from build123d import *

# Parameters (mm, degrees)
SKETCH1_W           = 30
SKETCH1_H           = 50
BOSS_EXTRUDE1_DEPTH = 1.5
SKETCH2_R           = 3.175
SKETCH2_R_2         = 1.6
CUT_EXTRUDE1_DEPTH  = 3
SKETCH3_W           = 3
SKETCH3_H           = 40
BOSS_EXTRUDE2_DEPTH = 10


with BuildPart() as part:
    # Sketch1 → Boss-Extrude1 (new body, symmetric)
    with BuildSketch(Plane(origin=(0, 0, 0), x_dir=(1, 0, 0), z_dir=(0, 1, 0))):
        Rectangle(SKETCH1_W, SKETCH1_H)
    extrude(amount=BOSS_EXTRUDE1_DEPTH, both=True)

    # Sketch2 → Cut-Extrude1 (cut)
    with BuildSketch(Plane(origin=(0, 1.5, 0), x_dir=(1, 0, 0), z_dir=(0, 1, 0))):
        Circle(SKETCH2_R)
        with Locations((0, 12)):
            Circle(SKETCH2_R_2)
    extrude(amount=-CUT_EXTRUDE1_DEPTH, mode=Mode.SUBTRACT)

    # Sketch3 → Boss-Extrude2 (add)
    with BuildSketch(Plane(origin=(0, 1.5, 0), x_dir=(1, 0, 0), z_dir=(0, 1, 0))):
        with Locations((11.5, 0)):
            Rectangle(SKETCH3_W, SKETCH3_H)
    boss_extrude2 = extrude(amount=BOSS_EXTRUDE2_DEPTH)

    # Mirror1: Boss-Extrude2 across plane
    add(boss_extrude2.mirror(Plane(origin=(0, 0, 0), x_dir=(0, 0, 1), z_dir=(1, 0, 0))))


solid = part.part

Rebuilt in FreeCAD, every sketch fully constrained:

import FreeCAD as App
import Part
import Sketcher
from FreeCAD import Vector
Q = App.Units.Quantity

doc = App.newDocument("Part")
body = doc.addObject("PartDesign::Body", "Body")

# Sketch on XZ plane
sketch1 = doc.addObject("Sketcher::SketchObject", "Sketch")
body.addObject(sketch1)
sketch1.AttachmentSupport = (doc.XZ_Plane, [""])
sketch1.MapMode = "FlatFace"
sketch1.addGeometry(Part.LineSegment(Vector(-15, -25, 0), Vector(-15, 25, 0)), False)
sketch1.addGeometry(Part.LineSegment(Vector(-15, 25, 0), Vector(15, 25, 0)), False)
sketch1.addGeometry(Part.LineSegment(Vector(15, 25, 0), Vector(15, -25, 0)), False)
sketch1.addGeometry(Part.LineSegment(Vector(15, -25, 0), Vector(-15, -25, 0)), False)
sketch1.addConstraint(Sketcher.Constraint("Coincident", 0, 2, 1, 1))
sketch1.addConstraint(Sketcher.Constraint("Coincident", 1, 2, 2, 1))
sketch1.addConstraint(Sketcher.Constraint("Coincident", 2, 2, 3, 1))
sketch1.addConstraint(Sketcher.Constraint("Coincident", 3, 2, 0, 1))
sketch1.addConstraint(Sketcher.Constraint("Vertical", 0))
sketch1.addConstraint(Sketcher.Constraint("Horizontal", 1))
sketch1.addConstraint(Sketcher.Constraint("Vertical", 2))
sketch1.addConstraint(Sketcher.Constraint("Horizontal", 3))
sketch1.addConstraint(Sketcher.Constraint("Symmetric", 0, 2, 2, 2, -1, 1))
sketch1.addConstraint(Sketcher.Constraint("DistanceX", 1, 1, 1, 2, Q("30 mm")))
sketch1.addConstraint(Sketcher.Constraint("DistanceY", 0, 1, 0, 2, Q("50 mm")))
pad1 = doc.addObject("PartDesign::Pad", "Pad")
body.addObject(pad1)
pad1.Profile = sketch1
pad1.Length = 3
pad1.Midplane = True

# Sketch on XZ plane
sketch2 = doc.addObject("Sketcher::SketchObject", "Sketch001")
body.addObject(sketch2)
sketch2.AttachmentSupport = (doc.XZ_Plane, [""])
sketch2.MapMode = "FlatFace"
sketch2.AttachmentOffset = App.Placement(Vector(0, 0, -1.5), App.Rotation())
sketch2.addGeometry(Part.Circle(Vector(0, 0, 0), Vector(0, 0, 1), 3.2), False)
sketch2.addGeometry(Part.Circle(Vector(0, -12, 0), Vector(0, 0, 1), 1.6), False)
sketch2.addConstraint(Sketcher.Constraint("Coincident", 0, 3, -1, 1))
sketch2.addConstraint(Sketcher.Constraint("PointOnObject", 1, 3, -2))
sketch2.addConstraint(Sketcher.Constraint("Diameter", 1, Q("3.2 mm")))
sketch2.addConstraint(Sketcher.Constraint("Diameter", 0, Q("6.35 mm")))
sketch2.addConstraint(Sketcher.Constraint("DistanceY", 1, 3, -1, 1, Q("12 mm")))
pocket1 = doc.addObject("PartDesign::Pocket", "Pocket")
body.addObject(pocket1)
pocket1.Profile = sketch2
pocket1.Length = 3
pocket1.Reversed = True

# Sketch on XZ plane
sketch3 = doc.addObject("Sketcher::SketchObject", "Sketch002")
body.addObject(sketch3)
sketch3.AttachmentSupport = (doc.XZ_Plane, [""])
sketch3.MapMode = "FlatFace"
sketch3.AttachmentOffset = App.Placement(Vector(0, 0, -1.5), App.Rotation())
sketch3.addGeometry(Part.LineSegment(Vector(10, -20, 0), Vector(10, 20, 0)), False)
sketch3.addGeometry(Part.LineSegment(Vector(10, 20, 0), Vector(13, 20, 0)), False)
sketch3.addGeometry(Part.LineSegment(Vector(13, 20, 0), Vector(13, -20, 0)), False)
sketch3.addGeometry(Part.LineSegment(Vector(13, -20, 0), Vector(10, -20, 0)), False)
sketch3.addConstraint(Sketcher.Constraint("Coincident", 0, 2, 1, 1))
sketch3.addConstraint(Sketcher.Constraint("Coincident", 1, 2, 2, 1))
sketch3.addConstraint(Sketcher.Constraint("Coincident", 2, 2, 3, 1))
sketch3.addConstraint(Sketcher.Constraint("Coincident", 3, 2, 0, 1))
sketch3.addConstraint(Sketcher.Constraint("Vertical", 0))
sketch3.addConstraint(Sketcher.Constraint("Horizontal", 1))
sketch3.addConstraint(Sketcher.Constraint("Vertical", 2))
sketch3.addConstraint(Sketcher.Constraint("Horizontal", 3))
sketch3.addConstraint(Sketcher.Constraint("DistanceX", 1, 1, 1, 2, Q("3 mm")))
sketch3.addConstraint(Sketcher.Constraint("DistanceY", 0, 1, 0, 2, Q("40 mm")))
sketch3.addConstraint(Sketcher.Constraint("DistanceX", -1, 1, 0, 2, Q("10 mm")))
sketch3.addConstraint(Sketcher.Constraint("DistanceY", -1, 1, 0, 2, Q("20 mm")))
pad2 = doc.addObject("PartDesign::Pad", "Pad001")
body.addObject(pad2)
pad2.Profile = sketch3
pad2.Length = 10
pad2.Reversed = True
doc.recompute()

mirrored = doc.addObject("PartDesign::Mirrored", "Mirrored")
body.addObject(mirrored)
mirrored.Originals = [pad2]
mirrored.MirrorPlane = (doc.YZ_Plane, [""])
body.Tip = mirrored

doc.recompute()
